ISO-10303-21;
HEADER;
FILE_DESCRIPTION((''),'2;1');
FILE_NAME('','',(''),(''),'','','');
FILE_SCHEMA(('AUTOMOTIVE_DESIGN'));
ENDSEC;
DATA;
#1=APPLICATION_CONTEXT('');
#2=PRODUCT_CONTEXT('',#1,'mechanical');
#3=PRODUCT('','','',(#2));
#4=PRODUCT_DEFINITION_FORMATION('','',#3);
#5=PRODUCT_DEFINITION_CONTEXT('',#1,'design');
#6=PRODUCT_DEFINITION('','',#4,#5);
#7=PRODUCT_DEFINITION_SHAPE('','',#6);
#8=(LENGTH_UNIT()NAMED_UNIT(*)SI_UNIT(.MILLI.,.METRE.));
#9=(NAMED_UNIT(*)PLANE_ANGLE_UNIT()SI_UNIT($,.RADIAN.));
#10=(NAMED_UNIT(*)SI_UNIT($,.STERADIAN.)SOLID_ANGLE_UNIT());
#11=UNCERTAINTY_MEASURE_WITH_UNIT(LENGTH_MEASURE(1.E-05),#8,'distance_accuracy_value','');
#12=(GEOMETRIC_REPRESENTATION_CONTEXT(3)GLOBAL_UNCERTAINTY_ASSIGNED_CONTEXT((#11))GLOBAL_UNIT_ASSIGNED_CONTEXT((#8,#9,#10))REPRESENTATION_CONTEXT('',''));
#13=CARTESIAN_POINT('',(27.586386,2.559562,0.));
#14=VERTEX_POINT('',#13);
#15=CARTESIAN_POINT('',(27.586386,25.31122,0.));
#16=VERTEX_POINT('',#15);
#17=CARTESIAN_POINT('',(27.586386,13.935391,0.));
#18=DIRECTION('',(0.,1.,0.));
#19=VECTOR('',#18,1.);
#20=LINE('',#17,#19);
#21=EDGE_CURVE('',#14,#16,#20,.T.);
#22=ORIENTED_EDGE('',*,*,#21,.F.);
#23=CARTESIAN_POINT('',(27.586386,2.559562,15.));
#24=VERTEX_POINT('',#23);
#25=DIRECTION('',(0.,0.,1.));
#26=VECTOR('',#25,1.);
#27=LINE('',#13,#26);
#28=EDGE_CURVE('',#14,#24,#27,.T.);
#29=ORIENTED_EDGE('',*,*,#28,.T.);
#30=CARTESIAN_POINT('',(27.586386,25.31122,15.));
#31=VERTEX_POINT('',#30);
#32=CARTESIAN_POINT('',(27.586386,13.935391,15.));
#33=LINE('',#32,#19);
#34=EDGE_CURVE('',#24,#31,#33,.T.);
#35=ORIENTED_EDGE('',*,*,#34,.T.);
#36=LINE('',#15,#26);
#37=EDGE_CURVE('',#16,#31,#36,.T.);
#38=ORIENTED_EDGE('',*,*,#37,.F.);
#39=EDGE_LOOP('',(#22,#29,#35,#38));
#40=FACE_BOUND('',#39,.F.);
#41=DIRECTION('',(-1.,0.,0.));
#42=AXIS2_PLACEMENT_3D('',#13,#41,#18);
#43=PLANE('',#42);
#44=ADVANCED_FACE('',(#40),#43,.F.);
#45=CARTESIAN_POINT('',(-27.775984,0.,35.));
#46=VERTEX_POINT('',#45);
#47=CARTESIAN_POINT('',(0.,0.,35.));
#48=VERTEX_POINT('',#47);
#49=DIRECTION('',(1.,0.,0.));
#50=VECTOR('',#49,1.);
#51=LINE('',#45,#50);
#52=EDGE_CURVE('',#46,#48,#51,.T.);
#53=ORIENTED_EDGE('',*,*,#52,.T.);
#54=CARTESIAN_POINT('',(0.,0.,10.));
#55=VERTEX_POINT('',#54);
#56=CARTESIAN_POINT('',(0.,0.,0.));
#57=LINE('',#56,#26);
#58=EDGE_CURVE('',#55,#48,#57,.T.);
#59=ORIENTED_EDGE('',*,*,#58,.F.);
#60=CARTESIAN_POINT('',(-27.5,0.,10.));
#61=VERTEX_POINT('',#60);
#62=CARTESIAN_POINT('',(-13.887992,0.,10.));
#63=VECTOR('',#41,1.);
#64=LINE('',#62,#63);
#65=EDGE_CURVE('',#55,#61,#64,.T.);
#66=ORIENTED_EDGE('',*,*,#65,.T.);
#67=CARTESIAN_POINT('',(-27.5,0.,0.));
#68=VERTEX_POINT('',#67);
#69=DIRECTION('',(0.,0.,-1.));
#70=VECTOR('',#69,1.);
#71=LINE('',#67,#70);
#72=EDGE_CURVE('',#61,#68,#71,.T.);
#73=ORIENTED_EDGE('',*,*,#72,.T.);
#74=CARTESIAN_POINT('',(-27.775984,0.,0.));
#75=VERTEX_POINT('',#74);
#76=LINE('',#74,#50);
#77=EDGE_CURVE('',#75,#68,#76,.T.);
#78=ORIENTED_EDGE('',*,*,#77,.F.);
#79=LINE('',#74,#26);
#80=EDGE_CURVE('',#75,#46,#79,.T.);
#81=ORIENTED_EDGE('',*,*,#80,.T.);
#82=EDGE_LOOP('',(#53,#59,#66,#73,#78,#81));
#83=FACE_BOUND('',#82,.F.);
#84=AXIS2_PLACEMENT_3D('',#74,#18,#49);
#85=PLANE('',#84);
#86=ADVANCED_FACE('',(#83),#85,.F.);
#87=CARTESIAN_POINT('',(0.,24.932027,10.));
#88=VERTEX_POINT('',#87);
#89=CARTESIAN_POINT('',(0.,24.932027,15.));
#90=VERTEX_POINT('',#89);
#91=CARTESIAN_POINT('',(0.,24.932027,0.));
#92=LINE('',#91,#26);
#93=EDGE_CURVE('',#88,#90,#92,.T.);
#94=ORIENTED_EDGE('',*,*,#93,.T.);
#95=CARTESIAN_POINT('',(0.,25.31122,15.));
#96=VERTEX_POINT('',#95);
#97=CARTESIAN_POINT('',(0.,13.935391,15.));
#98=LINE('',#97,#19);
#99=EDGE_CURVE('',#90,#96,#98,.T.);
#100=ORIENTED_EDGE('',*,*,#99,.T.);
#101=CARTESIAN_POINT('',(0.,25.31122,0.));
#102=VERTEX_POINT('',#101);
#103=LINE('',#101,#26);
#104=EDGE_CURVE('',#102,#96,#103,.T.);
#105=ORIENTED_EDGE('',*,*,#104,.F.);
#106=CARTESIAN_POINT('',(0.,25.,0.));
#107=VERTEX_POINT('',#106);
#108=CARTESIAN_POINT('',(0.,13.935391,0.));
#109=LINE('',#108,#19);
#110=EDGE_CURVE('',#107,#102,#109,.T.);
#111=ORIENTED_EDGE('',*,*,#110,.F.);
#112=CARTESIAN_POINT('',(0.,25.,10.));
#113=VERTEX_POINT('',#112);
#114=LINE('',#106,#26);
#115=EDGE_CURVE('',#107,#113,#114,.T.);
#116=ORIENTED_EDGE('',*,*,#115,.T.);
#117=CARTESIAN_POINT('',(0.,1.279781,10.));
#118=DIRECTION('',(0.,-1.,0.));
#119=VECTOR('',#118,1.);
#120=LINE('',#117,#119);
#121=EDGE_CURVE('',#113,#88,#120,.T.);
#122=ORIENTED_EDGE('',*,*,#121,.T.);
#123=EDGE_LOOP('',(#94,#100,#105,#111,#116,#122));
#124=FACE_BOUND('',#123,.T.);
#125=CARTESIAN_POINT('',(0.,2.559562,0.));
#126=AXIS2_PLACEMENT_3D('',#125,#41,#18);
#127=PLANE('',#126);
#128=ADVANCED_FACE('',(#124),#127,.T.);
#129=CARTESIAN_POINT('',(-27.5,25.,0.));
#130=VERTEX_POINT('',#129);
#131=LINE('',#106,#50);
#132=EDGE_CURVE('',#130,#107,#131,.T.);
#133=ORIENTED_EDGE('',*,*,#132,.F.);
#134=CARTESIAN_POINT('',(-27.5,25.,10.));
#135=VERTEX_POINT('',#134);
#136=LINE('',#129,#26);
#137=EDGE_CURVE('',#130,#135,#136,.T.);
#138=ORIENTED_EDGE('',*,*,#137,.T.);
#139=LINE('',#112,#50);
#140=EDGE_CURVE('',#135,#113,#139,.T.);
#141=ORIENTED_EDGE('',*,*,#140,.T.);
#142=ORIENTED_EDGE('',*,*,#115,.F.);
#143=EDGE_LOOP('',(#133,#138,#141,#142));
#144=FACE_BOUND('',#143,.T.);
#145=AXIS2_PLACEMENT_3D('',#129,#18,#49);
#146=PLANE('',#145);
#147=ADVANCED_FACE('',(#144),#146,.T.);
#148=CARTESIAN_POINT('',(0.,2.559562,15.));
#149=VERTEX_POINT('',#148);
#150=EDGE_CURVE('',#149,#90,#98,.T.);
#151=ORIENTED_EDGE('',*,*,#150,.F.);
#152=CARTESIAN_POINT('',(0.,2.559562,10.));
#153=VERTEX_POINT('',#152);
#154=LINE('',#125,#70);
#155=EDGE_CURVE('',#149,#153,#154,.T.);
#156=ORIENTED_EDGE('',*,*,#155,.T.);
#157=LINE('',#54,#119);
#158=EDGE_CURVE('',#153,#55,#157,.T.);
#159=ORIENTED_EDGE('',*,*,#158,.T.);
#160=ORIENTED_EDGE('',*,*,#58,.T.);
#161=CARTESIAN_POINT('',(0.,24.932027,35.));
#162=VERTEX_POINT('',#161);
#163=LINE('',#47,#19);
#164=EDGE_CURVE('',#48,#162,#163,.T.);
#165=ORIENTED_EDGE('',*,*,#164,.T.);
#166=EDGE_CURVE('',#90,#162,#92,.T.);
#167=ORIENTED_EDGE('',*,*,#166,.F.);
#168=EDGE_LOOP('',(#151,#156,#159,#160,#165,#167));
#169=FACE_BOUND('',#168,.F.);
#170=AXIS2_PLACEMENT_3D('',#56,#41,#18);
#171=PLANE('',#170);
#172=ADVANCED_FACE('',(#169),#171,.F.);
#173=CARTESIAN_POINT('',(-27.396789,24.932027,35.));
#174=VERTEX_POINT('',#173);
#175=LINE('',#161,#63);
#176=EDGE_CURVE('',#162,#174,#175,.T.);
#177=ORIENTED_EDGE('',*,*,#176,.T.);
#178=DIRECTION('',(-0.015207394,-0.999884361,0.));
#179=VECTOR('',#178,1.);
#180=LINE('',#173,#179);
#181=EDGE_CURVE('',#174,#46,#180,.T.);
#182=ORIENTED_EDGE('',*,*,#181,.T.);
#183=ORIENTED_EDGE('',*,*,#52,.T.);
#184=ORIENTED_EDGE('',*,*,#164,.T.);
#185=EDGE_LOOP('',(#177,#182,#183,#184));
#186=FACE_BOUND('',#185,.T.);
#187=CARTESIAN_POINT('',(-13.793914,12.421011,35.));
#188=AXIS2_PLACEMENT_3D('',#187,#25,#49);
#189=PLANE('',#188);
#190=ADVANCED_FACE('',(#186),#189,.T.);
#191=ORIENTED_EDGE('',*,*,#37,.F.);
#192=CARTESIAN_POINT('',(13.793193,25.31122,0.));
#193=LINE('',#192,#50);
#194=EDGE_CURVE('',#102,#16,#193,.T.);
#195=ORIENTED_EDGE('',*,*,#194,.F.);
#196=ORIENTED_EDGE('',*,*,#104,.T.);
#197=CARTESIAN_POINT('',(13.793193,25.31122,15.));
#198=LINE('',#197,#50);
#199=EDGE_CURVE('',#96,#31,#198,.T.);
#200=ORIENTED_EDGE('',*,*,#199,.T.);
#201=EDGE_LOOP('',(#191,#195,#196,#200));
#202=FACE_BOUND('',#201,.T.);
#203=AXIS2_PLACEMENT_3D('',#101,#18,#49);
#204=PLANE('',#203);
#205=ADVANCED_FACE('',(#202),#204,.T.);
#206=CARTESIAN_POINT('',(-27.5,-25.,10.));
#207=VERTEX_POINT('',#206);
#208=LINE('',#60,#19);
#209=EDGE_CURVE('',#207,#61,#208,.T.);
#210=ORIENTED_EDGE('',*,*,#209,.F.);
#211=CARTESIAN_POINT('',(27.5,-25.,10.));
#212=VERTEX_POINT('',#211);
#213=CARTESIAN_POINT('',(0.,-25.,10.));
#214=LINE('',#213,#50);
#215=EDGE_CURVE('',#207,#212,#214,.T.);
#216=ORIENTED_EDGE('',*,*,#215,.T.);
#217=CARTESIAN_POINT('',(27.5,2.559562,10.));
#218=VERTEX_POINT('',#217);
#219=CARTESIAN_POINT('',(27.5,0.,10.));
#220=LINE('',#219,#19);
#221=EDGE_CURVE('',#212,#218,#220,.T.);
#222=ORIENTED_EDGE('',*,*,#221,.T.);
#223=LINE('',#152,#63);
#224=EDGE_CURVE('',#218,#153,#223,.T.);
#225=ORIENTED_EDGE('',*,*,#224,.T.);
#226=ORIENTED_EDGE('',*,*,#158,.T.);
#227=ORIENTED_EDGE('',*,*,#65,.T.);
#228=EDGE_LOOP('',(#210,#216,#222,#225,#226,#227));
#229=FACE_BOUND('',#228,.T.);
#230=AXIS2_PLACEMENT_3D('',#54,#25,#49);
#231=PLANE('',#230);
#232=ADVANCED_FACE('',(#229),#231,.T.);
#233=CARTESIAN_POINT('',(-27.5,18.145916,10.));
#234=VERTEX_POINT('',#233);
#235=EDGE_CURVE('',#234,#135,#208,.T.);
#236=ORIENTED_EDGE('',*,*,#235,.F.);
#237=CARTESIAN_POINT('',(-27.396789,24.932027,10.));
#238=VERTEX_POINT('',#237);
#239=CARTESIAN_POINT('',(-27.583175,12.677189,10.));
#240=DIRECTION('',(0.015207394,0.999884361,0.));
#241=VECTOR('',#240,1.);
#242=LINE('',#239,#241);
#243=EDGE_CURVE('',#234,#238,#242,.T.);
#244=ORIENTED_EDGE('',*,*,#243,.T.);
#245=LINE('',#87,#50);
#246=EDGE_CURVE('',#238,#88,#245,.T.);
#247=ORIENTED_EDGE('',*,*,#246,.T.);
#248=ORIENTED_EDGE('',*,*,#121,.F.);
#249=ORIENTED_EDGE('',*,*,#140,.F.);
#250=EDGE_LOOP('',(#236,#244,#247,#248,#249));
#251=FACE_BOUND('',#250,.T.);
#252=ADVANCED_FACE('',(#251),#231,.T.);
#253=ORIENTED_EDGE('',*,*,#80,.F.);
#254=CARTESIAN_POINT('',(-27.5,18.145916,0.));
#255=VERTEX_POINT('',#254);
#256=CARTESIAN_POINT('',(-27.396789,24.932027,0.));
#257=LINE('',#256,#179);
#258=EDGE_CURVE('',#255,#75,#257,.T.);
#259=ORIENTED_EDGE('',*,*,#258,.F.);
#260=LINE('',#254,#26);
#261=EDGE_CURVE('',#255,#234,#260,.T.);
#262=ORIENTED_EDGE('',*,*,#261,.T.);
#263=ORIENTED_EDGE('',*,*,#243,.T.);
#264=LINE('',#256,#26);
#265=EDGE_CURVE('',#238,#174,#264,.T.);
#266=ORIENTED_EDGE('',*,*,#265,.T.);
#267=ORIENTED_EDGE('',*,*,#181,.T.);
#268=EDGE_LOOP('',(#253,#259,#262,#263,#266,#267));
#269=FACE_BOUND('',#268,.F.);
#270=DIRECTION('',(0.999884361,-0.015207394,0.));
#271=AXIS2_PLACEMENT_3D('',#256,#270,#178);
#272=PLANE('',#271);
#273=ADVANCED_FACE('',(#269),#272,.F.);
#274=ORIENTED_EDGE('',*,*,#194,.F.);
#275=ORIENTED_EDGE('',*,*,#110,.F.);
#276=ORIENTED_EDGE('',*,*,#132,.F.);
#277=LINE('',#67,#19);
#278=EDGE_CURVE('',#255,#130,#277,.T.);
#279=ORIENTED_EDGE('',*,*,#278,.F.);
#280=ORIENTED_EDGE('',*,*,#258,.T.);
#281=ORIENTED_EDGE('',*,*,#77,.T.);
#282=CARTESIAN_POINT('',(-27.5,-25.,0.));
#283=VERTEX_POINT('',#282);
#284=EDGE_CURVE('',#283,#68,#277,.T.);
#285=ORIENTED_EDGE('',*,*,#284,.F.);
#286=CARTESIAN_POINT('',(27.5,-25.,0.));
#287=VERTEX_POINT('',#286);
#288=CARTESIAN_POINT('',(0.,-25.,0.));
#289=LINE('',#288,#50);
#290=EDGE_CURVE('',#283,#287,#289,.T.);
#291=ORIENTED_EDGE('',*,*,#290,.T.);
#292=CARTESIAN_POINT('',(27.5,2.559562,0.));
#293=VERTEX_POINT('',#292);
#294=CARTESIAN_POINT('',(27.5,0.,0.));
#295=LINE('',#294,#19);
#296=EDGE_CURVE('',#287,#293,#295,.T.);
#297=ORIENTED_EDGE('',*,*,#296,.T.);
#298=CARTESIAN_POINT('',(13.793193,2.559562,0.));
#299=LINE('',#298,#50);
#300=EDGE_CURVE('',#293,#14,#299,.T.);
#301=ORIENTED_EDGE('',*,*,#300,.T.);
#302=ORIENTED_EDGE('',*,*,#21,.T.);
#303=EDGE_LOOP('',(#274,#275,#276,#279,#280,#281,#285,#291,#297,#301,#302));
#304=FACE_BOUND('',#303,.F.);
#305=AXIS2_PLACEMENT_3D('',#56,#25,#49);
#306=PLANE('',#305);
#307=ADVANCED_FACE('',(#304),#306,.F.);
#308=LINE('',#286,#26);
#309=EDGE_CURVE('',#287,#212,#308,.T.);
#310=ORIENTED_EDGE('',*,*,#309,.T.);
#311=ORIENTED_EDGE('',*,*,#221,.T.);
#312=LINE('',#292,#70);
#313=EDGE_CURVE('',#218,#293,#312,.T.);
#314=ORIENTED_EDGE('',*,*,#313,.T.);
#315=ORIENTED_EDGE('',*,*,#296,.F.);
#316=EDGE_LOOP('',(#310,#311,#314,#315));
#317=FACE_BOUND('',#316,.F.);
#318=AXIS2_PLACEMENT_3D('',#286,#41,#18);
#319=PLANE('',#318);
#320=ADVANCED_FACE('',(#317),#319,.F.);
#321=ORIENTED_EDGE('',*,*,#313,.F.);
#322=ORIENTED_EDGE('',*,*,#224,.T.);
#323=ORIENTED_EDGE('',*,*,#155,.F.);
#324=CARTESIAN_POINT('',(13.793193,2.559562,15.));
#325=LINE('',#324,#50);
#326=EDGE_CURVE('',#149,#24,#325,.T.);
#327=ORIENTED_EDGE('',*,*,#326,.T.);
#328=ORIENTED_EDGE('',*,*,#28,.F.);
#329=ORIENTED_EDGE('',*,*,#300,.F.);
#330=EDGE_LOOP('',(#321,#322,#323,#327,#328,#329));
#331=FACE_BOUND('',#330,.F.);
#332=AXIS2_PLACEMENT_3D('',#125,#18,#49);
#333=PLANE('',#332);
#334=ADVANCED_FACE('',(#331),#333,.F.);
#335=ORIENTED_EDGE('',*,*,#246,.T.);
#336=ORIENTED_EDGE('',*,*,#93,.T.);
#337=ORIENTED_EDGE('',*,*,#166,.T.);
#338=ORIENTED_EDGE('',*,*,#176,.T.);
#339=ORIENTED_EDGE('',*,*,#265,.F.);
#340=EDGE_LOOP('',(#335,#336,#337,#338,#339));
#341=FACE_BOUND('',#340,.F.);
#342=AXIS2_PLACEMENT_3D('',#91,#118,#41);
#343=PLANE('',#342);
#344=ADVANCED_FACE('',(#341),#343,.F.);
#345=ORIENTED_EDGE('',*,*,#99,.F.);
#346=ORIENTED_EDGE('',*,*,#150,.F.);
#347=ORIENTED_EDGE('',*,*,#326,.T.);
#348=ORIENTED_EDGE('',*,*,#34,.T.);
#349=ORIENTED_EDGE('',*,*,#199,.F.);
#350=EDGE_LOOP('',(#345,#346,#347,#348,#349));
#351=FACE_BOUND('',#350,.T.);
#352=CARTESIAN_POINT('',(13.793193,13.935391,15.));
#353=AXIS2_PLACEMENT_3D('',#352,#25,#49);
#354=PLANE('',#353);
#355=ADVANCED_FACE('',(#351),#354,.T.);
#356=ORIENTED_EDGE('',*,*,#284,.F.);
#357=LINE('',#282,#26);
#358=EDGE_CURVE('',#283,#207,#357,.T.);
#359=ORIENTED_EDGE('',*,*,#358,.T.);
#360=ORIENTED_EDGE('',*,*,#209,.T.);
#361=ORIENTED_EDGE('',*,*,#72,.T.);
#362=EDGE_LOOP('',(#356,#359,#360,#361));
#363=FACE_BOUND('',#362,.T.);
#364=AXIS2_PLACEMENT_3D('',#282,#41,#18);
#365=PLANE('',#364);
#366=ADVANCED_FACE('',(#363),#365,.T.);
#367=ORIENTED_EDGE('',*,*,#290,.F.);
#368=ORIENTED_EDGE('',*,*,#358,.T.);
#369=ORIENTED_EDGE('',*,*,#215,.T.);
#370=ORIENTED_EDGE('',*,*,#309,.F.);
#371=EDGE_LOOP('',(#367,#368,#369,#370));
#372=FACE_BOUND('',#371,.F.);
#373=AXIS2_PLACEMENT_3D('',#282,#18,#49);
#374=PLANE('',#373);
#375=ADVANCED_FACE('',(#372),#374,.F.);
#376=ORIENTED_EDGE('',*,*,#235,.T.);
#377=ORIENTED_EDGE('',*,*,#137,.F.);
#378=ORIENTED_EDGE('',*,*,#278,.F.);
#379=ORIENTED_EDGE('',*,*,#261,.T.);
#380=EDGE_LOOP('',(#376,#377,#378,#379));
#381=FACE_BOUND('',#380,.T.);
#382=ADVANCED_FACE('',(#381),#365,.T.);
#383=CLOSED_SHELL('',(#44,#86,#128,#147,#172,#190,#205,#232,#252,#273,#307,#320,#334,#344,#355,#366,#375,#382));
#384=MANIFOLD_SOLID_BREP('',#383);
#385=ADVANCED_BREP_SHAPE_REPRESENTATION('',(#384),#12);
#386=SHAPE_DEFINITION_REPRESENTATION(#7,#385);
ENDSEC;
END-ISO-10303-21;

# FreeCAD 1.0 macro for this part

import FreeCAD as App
import Part
import Sketcher
Q = App.Units.Quantity

doc = App.newDocument("Part")
params = doc.addObject("Spreadsheet::Sheet", "Params")
for row, (alias, value) in enumerate([
    ("sketch1_width", "55 mm"),
    ("sketch1_height", "50 mm"),
    ("pad1_length", "10 mm"),
    ("pad2_length", "35 mm"),
    ("pad3_length", "15 mm"),
], start=1):
    params.set(f"A{row}", alias)
    params.set(f"B{row}", "=" + value)
    params.setAlias(f"B{row}", alias)

body = doc.addObject("PartDesign::Body", "Body")

# Sketch on XY plane
sketch1 = body.newObject("Sketcher::SketchObject", "Sketch")
sketch1.AttachmentSupport = (doc.getObject("XY_Plane"), [""])
sketch1.MapMode = "FlatFace"
sketch1.addGeometry([
    Part.LineSegment(App.Vector(-27.5, 25, 0), App.Vector(-27.5, -25, 0)),
    Part.LineSegment(App.Vector(-27.5, -25, 0), App.Vector(27.5, -25, 0)),
    Part.LineSegment(App.Vector(27.5, -25, 0), App.Vector(27.5, 25, 0)),
    Part.LineSegment(App.Vector(27.5, 25, 0), App.Vector(-27.5, 25, 0)),
], False)
sketch1.addConstraint([
    Sketcher.Constraint("Coincident", 0, 2, 1, 1),
    Sketcher.Constraint("Coincident", 1, 2, 2, 1),
    Sketcher.Constraint("Coincident", 2, 2, 3, 1),
    Sketcher.Constraint("Coincident", 3, 2, 0, 1),
    Sketcher.Constraint("Vertical", 0),
    Sketcher.Constraint("Horizontal", 1),
    Sketcher.Constraint("Vertical", 2),
    Sketcher.Constraint("Horizontal", 3),
    Sketcher.Constraint("Symmetric", 0, 2, 2, 2, -1, 1),
    Sketcher.Constraint("DistanceX", 1, 1, 1, 2, Q("55 mm")),
    Sketcher.Constraint("DistanceY", 0, 2, 0, 1, Q("50 mm")),
])
sketch1.setExpression("Constraints[9]", "Params.sketch1_width")
sketch1.setExpression("Constraints[10]", "Params.sketch1_height")
pad1 = body.newObject("PartDesign::Pad", "Pad")
pad1.Profile = sketch1
pad1.setExpression("Length", "Params.pad1_length")

# Sketch on XY plane
sketch2 = body.newObject("Sketcher::SketchObject", "Sketch001")
sketch2.AttachmentSupport = (doc.getObject("XY_Plane"), [""])
sketch2.MapMode = "FlatFace"
sketch2.addGeometry([
    Part.LineSegment(App.Vector(-27.396789, 24.932027, 0), App.Vector(-27.775984, 0, 0)),
    Part.LineSegment(App.Vector(-27.775984, 0, 0), App.Vector(0, 0, 0)),
    Part.LineSegment(App.Vector(0, 0, 0), App.Vector(0, 24.932027, 0)),
    Part.LineSegment(App.Vector(0, 24.932027, 0), App.Vector(-27.396789, 24.932027, 0)),
], False)
sketch2.addConstraint([
    Sketcher.Constraint("Coincident", 0, 2, 1, 1),
    Sketcher.Constraint("Coincident", 1, 2, 2, 1),
    Sketcher.Constraint("Coincident", 2, 2, 3, 1),
    Sketcher.Constraint("Coincident", 3, 2, 0, 1),
    Sketcher.Constraint("Horizontal", 1),
    Sketcher.Constraint("Vertical", 2),
    Sketcher.Constraint("Horizontal", 3),
    Sketcher.Constraint("Coincident", 1, 2, -1, 1),
    Sketcher.Constraint("DistanceX", 3, 2, 3, 1, Q("27.396789 mm")),
    Sketcher.Constraint("Distance", 0, Q("24.93491 mm")),
    Sketcher.Constraint("DistanceX", 1, 1, 1, 2, Q("27.775984 mm")),
])
pad2 = body.newObject("PartDesign::Pad", "Pad001")
pad2.Profile = sketch2
pad2.setExpression("Length", "Params.pad2_length")

# Sketch on XY plane
sketch3 = body.newObject("Sketcher::SketchObject", "Sketch002")
sketch3.AttachmentSupport = (doc.getObject("XY_Plane"), [""])
sketch3.MapMode = "FlatFace"
sketch3.addGeometry([
    Part.LineSegment(App.Vector(0, 25.31122, 0), App.Vector(0, 2.559562, 0)),
    Part.LineSegment(App.Vector(0, 2.559562, 0), App.Vector(27.586386, 2.559562, 0)),
    Part.LineSegment(App.Vector(27.586386, 2.559562, 0), App.Vector(27.586386, 25.31122, 0)),
    Part.LineSegment(App.Vector(27.586386, 25.31122, 0), App.Vector(0, 25.31122, 0)),
], False)
sketch3.addConstraint([
    Sketcher.Constraint("Coincident", 0, 2, 1, 1),
    Sketcher.Constraint("Coincident", 1, 2, 2, 1),
    Sketcher.Constraint("Coincident", 2, 2, 3, 1),
    Sketcher.Constraint("Coincident", 3, 2, 0, 1),
    Sketcher.Constraint("Vertical", 0),
    Sketcher.Constraint("Horizontal", 1),
    Sketcher.Constraint("Vertical", 2),
    Sketcher.Constraint("Horizontal", 3),
    Sketcher.Constraint("PointOnObject", 0, 2, -2),
    Sketcher.Constraint("DistanceX", 1, 1, 1, 2, Q("27.586387 mm")),
    Sketcher.Constraint("DistanceY", 0, 2, 0, 1, Q("22.751658 mm")),
    Sketcher.Constraint("DistanceY", -1, 1, 2, 2, Q("25.31122 mm")),
])
pad3 = body.newObject("PartDesign::Pad", "Pad002")
pad3.Profile = sketch3
pad3.setExpression("Length", "Params.pad3_length")

doc.recompute()
